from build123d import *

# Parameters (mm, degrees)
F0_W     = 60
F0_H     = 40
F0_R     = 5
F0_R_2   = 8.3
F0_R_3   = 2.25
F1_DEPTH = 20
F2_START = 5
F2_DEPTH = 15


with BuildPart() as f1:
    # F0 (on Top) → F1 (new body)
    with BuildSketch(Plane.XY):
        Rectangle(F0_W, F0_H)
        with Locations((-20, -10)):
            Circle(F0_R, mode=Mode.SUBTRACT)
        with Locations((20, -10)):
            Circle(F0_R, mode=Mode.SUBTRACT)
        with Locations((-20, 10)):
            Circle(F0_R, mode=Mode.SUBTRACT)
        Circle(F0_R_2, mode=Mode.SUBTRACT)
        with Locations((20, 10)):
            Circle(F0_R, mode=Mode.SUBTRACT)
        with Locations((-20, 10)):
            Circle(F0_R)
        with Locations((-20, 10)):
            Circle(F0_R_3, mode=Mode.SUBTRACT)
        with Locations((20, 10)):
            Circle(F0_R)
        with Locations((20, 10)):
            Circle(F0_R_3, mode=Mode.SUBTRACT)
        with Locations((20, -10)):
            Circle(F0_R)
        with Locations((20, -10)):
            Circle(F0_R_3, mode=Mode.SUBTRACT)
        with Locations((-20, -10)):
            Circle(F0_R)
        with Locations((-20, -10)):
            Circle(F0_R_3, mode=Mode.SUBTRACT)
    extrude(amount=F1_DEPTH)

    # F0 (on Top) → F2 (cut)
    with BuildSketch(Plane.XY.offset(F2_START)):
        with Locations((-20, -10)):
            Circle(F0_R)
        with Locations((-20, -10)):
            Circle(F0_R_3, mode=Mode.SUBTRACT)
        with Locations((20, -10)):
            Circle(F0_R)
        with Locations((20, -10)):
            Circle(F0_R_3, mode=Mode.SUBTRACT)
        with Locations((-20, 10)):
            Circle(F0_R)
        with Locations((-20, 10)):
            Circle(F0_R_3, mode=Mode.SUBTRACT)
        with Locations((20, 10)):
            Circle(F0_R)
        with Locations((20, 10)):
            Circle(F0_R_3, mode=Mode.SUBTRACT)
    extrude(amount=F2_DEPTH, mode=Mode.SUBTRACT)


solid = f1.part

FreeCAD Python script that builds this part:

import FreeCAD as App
import Part
import Sketcher

doc = App.newDocument("Part")
body = doc.addObject("PartDesign::Body", "Body")

# Sketch on XY plane
sketch1 = body.newObject("Sketcher::SketchObject", "Sketch")
sketch1.AttachmentSupport = (doc.getObject("XY_Plane"), [""])
sketch1.MapMode = "FlatFace"
sketch1.addGeometry([
    Part.LineSegment(App.Vector(-30, 20, 0), App.Vector(-30, -20, 0)),  # 0
    Part.LineSegment(App.Vector(-30, -20, 0), App.Vector(30, -20, 0)),  # 1
    Part.LineSegment(App.Vector(30, -20, 0), App.Vector(30, 20, 0)),  # 2
    Part.LineSegment(App.Vector(30, 20, 0), App.Vector(-30, 20, 0)),  # 3
    Part.Circle(App.Vector(-20, -10, 0), App.Vector(0, 0, 1), 2.2),  # 4
    Part.Circle(App.Vector(20, -10, 0), App.Vector(0, 0, 1), 2.2),  # 5
    Part.Circle(App.Vector(0, 0, 0), App.Vector(0, 0, 1), 8.3),  # 6
    Part.Circle(App.Vector(-20, 10, 0), App.Vector(0, 0, 1), 2.2),  # 7
    Part.Circle(App.Vector(20, 10, 0), App.Vector(0, 0, 1), 2.2),  # 8
], False)
sketch1.addConstraint([
    Sketcher.Constraint("Coincident", 0, 2, 1, 1),
    Sketcher.Constraint("Coincident", 1, 2, 2, 1),
    Sketcher.Constraint("Coincident", 2, 2, 3, 1),
    Sketcher.Constraint("Coincident", 3, 2, 0, 1),
    Sketcher.Constraint("Vertical", 0),
    Sketcher.Constraint("Horizontal", 1),
    Sketcher.Constraint("Vertical", 2),
    Sketcher.Constraint("Horizontal", 3),
    Sketcher.Constraint("Coincident", 6, 3, -1, 1),
    Sketcher.Constraint("Equal", 4, 5),
    Sketcher.Constraint("Equal", 5, 7),
    Sketcher.Constraint("Equal", 7, 8),
    Sketcher.Constraint("Symmetric", 5, 3, 7, 3, -1, 1),
    Sketcher.Constraint("Symmetric", 4, 3, 8, 3, -1, 1),
    Sketcher.Constraint("Symmetric", 0, 2, 2, 2, -1, 1),
    Sketcher.Constraint("Symmetric", 4, 3, 5, 3, -2),
    Sketcher.Constraint("Diameter", 4, 4.5),
    Sketcher.Constraint("Diameter", 6, 16.6),
    Sketcher.Constraint("DistanceX", 1, 1, 1, 2, 60.0),
    Sketcher.Constraint("DistanceY", 0, 2, 0, 1, 40.0),
    Sketcher.Constraint("DistanceX", 4, 3, -1, 1, 20.0),
    Sketcher.Constraint("DistanceY", 4, 3, -1, 1, 10.0),
])
pad1 = body.newObject("PartDesign::Pad", "Pad")
pad1.Profile = sketch1
pad1.Length = 20

# Sketch on XY plane
sketch2 = body.newObject("Sketcher::SketchObject", "Sketch001")
sketch2.AttachmentSupport = (doc.getObject("XY_Plane"), [""])
sketch2.MapMode = "FlatFace"
sketch2.AttachmentOffset = App.Placement(App.Vector(0, 0, 5), App.Rotation())
sketch2.addGeometry([
    Part.Circle(App.Vector(-20, -10, 0), App.Vector(0, 0, 1), 5),  # 0
    Part.Circle(App.Vector(-20, -10, 0), App.Vector(0, 0, 1), 2.2),  # 1
    Part.Circle(App.Vector(20, -10, 0), App.Vector(0, 0, 1), 5),  # 2
    Part.Circle(App.Vector(20, -10, 0), App.Vector(0, 0, 1), 2.2),  # 3
    Part.Circle(App.Vector(-20, 10, 0), App.Vector(0, 0, 1), 5),  # 4
    Part.Circle(App.Vector(-20, 10, 0), App.Vector(0, 0, 1), 2.2),  # 5
    Part.Circle(App.Vector(20, 10, 0), App.Vector(0, 0, 1), 5),  # 6
    Part.Circle(App.Vector(20, 10, 0), App.Vector(0, 0, 1), 2.2),  # 7
], False)
sketch2.addConstraint([
    Sketcher.Constraint("Coincident", 1, 3, 0, 3),
    Sketcher.Constraint("Coincident", 3, 3, 2, 3),
    Sketcher.Constraint("Coincident", 5, 3, 4, 3),
    Sketcher.Constraint("Coincident", 7, 3, 6, 3),
    Sketcher.Constraint("Equal", 0, 2),
    Sketcher.Constraint("Equal", 1, 3),
    Sketcher.Constraint("Equal", 2, 4),
    Sketcher.Constraint("Equal", 3, 5),
    Sketcher.Constraint("Equal", 4, 6),
    Sketcher.Constraint("Equal", 5, 7),
    Sketcher.Constraint("Symmetric", 2, 3, 4, 3, -1, 1),
    Sketcher.Constraint("Symmetric", 0, 3, 6, 3, -1, 1),
    Sketcher.Constraint("Symmetric", 0, 3, 2, 3, -2),
    Sketcher.Constraint("Diameter", 0, 10.0),
    Sketcher.Constraint("Diameter", 1, 4.5),
    Sketcher.Constraint("DistanceX", 0, 3, -1, 1, 20.0),
    Sketcher.Constraint("DistanceY", 0, 3, -1, 1, 10.0),
])
pocket1 = body.newObject("PartDesign::Pocket", "Pocket")
pocket1.Profile = sketch2
pocket1.Length = 15
pocket1.Reversed = True

doc.recompute()
